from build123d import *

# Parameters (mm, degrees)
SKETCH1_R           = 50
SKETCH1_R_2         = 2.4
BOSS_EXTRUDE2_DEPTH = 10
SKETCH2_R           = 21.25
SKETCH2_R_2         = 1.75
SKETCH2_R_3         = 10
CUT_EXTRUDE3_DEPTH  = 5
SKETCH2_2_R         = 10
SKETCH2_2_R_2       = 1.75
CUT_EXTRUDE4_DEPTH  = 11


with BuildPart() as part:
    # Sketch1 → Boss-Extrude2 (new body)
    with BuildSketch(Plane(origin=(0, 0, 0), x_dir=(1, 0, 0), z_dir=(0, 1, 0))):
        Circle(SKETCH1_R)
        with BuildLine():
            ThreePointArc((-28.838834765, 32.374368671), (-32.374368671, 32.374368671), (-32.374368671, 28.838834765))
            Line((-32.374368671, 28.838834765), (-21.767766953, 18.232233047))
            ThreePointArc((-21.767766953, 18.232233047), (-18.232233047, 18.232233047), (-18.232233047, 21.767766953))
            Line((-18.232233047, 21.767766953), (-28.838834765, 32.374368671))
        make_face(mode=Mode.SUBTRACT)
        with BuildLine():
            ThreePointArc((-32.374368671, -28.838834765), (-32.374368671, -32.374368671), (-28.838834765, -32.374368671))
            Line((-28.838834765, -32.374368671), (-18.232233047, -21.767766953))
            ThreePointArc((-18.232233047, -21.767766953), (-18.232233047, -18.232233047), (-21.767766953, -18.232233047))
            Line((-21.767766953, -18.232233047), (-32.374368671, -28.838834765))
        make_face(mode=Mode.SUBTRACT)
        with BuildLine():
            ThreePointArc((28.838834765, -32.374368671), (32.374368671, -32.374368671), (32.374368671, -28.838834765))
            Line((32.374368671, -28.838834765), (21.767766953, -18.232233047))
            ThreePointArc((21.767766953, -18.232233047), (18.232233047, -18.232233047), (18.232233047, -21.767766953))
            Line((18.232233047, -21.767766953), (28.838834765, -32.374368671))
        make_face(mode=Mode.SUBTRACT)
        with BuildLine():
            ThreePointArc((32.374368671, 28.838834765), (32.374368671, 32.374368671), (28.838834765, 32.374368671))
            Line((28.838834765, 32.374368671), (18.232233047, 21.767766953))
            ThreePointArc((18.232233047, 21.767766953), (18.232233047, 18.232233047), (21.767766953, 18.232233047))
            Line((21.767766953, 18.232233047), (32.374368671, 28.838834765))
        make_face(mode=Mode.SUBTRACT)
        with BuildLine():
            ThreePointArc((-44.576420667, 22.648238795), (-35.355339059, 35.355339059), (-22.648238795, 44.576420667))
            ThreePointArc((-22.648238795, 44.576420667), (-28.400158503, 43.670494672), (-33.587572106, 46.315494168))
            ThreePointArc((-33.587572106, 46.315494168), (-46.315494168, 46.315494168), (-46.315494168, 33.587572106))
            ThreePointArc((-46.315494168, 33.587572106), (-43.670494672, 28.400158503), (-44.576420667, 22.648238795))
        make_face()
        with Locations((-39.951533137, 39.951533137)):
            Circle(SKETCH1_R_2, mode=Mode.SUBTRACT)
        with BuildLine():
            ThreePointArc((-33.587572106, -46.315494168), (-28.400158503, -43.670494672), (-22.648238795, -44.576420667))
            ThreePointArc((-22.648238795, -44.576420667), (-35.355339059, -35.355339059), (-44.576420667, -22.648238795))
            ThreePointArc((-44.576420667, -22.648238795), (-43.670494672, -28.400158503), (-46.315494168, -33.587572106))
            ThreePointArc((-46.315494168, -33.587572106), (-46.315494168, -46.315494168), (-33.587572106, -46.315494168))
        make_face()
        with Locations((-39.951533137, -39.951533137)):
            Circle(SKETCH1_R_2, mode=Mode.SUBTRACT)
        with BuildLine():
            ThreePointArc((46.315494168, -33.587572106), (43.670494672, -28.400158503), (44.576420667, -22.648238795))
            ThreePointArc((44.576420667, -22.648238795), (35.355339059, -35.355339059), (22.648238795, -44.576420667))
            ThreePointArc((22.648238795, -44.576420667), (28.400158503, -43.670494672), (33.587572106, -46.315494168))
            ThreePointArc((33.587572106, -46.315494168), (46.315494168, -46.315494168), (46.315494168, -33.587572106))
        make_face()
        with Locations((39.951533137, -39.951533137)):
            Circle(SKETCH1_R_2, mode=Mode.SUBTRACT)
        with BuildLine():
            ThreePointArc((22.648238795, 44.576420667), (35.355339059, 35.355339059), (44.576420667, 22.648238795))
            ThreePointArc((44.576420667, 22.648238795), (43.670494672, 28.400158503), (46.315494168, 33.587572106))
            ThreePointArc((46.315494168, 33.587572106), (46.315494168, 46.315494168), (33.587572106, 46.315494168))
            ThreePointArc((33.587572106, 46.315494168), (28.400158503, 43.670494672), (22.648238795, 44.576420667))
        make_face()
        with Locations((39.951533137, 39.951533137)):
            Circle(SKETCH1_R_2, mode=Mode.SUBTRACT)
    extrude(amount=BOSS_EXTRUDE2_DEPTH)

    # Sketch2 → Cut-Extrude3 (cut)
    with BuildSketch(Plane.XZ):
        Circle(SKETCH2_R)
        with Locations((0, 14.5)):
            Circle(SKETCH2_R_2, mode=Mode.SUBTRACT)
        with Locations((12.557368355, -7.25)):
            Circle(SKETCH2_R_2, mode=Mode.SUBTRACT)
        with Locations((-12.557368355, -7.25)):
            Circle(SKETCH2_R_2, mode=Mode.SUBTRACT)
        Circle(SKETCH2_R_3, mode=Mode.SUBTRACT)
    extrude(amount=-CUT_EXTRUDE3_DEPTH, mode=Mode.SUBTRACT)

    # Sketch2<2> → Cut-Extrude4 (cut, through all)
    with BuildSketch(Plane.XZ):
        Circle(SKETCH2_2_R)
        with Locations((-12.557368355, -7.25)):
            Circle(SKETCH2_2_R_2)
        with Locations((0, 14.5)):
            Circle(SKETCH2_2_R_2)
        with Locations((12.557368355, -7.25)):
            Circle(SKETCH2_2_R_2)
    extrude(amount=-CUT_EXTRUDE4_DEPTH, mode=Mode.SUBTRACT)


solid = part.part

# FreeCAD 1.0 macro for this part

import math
import FreeCAD as App
import Part
import Sketcher

V = App.Vector

doc = App.newDocument("Part")
body = doc.addObject("PartDesign::Body", "Body")

# Sketch on XZ plane
sketch1 = body.newObject("Sketcher::SketchObject", "Sketch")
sketch1.AttachmentSupport = (doc.getObject("XZ_Plane"), [""])
sketch1.MapMode = "FlatFace"
sketch1.addGeometry([
    Part.ArcOfCircle(Part.Circle(V(-26.9, -53, 0), V(0, 0, 1), 9.4), math.radians(63), math.radians(135)),  # 0
    Part.ArcOfCircle(Part.Circle(V(-40, -40, 0), V(0, 0, 1), 9), math.radians(135), math.radians(315)),  # 1
    Part.ArcOfCircle(Part.Circle(V(-53, -26.9, 0), V(0, 0, 1), 9.4), math.radians(-45), math.radians(27)),  # 2
    Part.ArcOfCircle(Part.Circle(V(0, 0, 0), V(0, 0, 1), 50), math.radians(153), math.radians(207)),  # 3
    Part.ArcOfCircle(Part.Circle(V(-53, 26.9, 0), V(0, 0, 1), 9.4), math.radians(-27), math.radians(45)),  # 4
    Part.ArcOfCircle(Part.Circle(V(-40, 40, 0), V(0, 0, 1), 9), math.radians(45), math.radians(225)),  # 5
    Part.ArcOfCircle(Part.Circle(V(-26.9, 53, 0), V(0, 0, 1), 9.4), math.radians(-135), math.radians(-63)),  # 6
    Part.ArcOfCircle(Part.Circle(V(0, 0, 0), V(0, 0, 1), 50), math.radians(63), math.radians(117)),  # 7
    Part.ArcOfCircle(Part.Circle(V(26.9, 53, 0), V(0, 0, 1), 9.4), math.radians(-117), math.radians(-45)),  # 8
    Part.ArcOfCircle(Part.Circle(V(40, 40, 0), V(0, 0, 1), 9), math.radians(-45), math.radians(135)),  # 9
    Part.ArcOfCircle(Part.Circle(V(53, 26.9, 0), V(0, 0, 1), 9.4), math.radians(135), math.radians(207)),  # 10
    Part.ArcOfCircle(Part.Circle(V(0, 0, 0), V(0, 0, 1), 50), math.radians(-27), math.radians(27)),  # 11
    Part.ArcOfCircle(Part.Circle(V(53, -26.9, 0), V(0, 0, 1), 9.4), math.radians(153), math.radians(225)),  # 12
    Part.ArcOfCircle(Part.Circle(V(40, -40, 0), V(0, 0, 1), 9), math.radians(-135), math.radians(45)),  # 13
    Part.ArcOfCircle(Part.Circle(V(26.9, -53, 0), V(0, 0, 1), 9.4), math.radians(45), math.radians(117)),  # 14
    Part.ArcOfCircle(Part.Circle(V(0, 0, 0), V(0, 0, 1), 50), math.radians(-117), math.radians(-63)),  # 15
    Part.Circle(V(-40, 40, 0), V(0, 0, 1), 2.4),  # 16
    Part.ArcOfCircle(Part.Circle(V(-30.6, 30.6, 0), V(0, 0, 1), 2.5), math.radians(45), math.radians(225)),  # 17
    Part.LineSegment(V(-32.4, 28.8, 0), V(-21.8, 18.2, 0)),  # 18
    Part.ArcOfCircle(Part.Circle(V(-20, 20, 0), V(0, 0, 1), 2.5), math.radians(-135), math.radians(45)),  # 19
    Part.LineSegment(V(-18.2, 21.8, 0), V(-28.8, 32.4, 0)),  # 20
    Part.Circle(V(40, 40, 0), V(0, 0, 1), 2.4),  # 21
    Part.ArcOfCircle(Part.Circle(V(30.6, 30.6, 0), V(0, 0, 1), 2.5), math.radians(-45), math.radians(135)),  # 22
    Part.LineSegment(V(28.8, 32.4, 0), V(18.2, 21.8, 0)),  # 23
    Part.ArcOfCircle(Part.Circle(V(20, 20, 0), V(0, 0, 1), 2.5), math.radians(135), math.radians(315)),  # 24
    Part.LineSegment(V(21.8, 18.2, 0), V(32.4, 28.8, 0)),  # 25
    Part.ArcOfCircle(Part.Circle(V(-30.6, -30.6, 0), V(0, 0, 1), 2.5), math.radians(135), math.radians(315)),  # 26
    Part.LineSegment(V(-28.8, -32.4, 0), V(-18.2, -21.8, 0)),  # 27
    Part.ArcOfCircle(Part.Circle(V(-20, -20, 0), V(0, 0, 1), 2.5), math.radians(-45), math.radians(135)),  # 28
    Part.LineSegment(V(-21.8, -18.2, 0), V(-32.4, -28.8, 0)),  # 29
    Part.Circle(V(-40, -40, 0), V(0, 0, 1), 2.4),  # 30
    Part.ArcOfCircle(Part.Circle(V(30.6, -30.6, 0), V(0, 0, 1), 2.5), math.radians(-135), math.radians(45)),  # 31
    Part.LineSegment(V(32.4, -28.8, 0), V(21.8, -18.2, 0)),  # 32
    Part.ArcOfCircle(Part.Circle(V(20, -20, 0), V(0, 0, 1), 2.5), math.radians(45), math.radians(225)),  # 33
    Part.LineSegment(V(18.2, -21.8, 0), V(28.8, -32.4, 0)),  # 34
    Part.Circle(V(40, -40, 0), V(0, 0, 1), 2.4),  # 35
], False)
sketch1.addConstraint([
    Sketcher.Constraint("Tangent", 0, 2, 1, 2),
    Sketcher.Constraint("Tangent", 1, 1, 2, 1),
    Sketcher.Constraint("Tangent", 2, 2, 3, 2),
    Sketcher.Constraint("Tangent", 3, 1, 4, 1),
    Sketcher.Constraint("Tangent", 4, 2, 5, 2),
    Sketcher.Constraint("Tangent", 5, 1, 6, 1),
    Sketcher.Constraint("Tangent", 6, 2, 7, 2),
    Sketcher.Constraint("Tangent", 7, 1, 8, 1),
    Sketcher.Constraint("Tangent", 8, 2, 9, 2),
    Sketcher.Constraint("Tangent", 9, 1, 10, 1),
    Sketcher.Constraint("Tangent", 10, 2, 11, 2),
    Sketcher.Constraint("Tangent", 11, 1, 12, 1),
    Sketcher.Constraint("Tangent", 12, 2, 13, 2),
    Sketcher.Constraint("Tangent", 13, 1, 14, 1),
    Sketcher.Constraint("Tangent", 14, 2, 15, 2),
    Sketcher.Constraint("Tangent", 15, 1, 0, 1),
    Sketcher.Constraint("Tangent", 17, 2, 18, 1),
    Sketcher.Constraint("Tangent", 18, 2, 19, 1),
    Sketcher.Constraint("Tangent", 19, 2, 20, 1),
    Sketcher.Constraint("Tangent", 20, 2, 17, 1),
    Sketcher.Constraint("Tangent", 22, 2, 23, 1),
    Sketcher.Constraint("Tangent", 23, 2, 24, 1),
    Sketcher.Constraint("Tangent", 24, 2, 25, 1),
    Sketcher.Constraint("Tangent", 25, 2, 22, 1),
    Sketcher.Constraint("Tangent", 26, 2, 27, 1),
    Sketcher.Constraint("Tangent", 27, 2, 28, 1),
    Sketcher.Constraint("Tangent", 28, 2, 29, 1),
    Sketcher.Constraint("Tangent", 29, 2, 26, 1),
    Sketcher.Constraint("Tangent", 31, 2, 32, 1),
    Sketcher.Constraint("Tangent", 32, 2, 33, 1),
    Sketcher.Constraint("Tangent", 33, 2, 34, 1),
    Sketcher.Constraint("Tangent", 34, 2, 31, 1),
    Sketcher.Constraint("Coincident", 3, 3, -1, 1),
    Sketcher.Constraint("Coincident", 7, 3, -1, 1),
    Sketcher.Constraint("Coincident", 11, 3, -1, 1),
    Sketcher.Constraint("Coincident", 15, 3, -1, 1),
    Sketcher.Constraint("Coincident", 16, 3, 5, 3),
    Sketcher.Constraint("Coincident", 21, 3, 9, 3),
    Sketcher.Constraint("Coincident", 30, 3, 1, 3),
    Sketcher.Constraint("Coincident", 35, 3, 13, 3),
    Sketcher.Constraint("Equal", 0, 2),
    Sketcher.Constraint("Equal", 2, 4),
    Sketcher.Constraint("Equal", 1, 5),
    Sketcher.Constraint("Equal", 4, 6),
    Sketcher.Constraint("Equal", 3, 7),
    Sketcher.Constraint("Equal", 6, 8),
    Sketcher.Constraint("Equal", 5, 9),
    Sketcher.Constraint("Equal", 8, 10),
    Sketcher.Constraint("Equal", 7, 11),
    Sketcher.Constraint("Equal", 10, 12),
    Sketcher.Constraint("Equal", 9, 13),
    Sketcher.Constraint("Equal", 12, 14),
    Sketcher.Constraint("Equal", 11, 15),
    Sketcher.Constraint("Equal", 17, 19),
    Sketcher.Constraint("Equal", 16, 21),
    Sketcher.Constraint("Equal", 19, 22),
    Sketcher.Constraint("Equal", 22, 24),
    Sketcher.Constraint("Equal", 24, 26),
    Sketcher.Constraint("Equal", 26, 28),
    Sketcher.Constraint("Equal", 21, 30),
    Sketcher.Constraint("Equal", 28, 31),
    Sketcher.Constraint("Equal", 31, 33),
    Sketcher.Constraint("Equal", 30, 35),
    Sketcher.Constraint("Symmetric", 1, 3, 9, 3, -1, 1),
    Sketcher.Constraint("Symmetric", 5, 3, 13, 3, -1, 1),
    Sketcher.Constraint("Symmetric", 22, 3, 26, 3, -1, 1),
    Sketcher.Constraint("Symmetric", 24, 3, 28, 3, -1, 1),
    Sketcher.Constraint("Symmetric", 17, 3, 31, 3, -1, 1),
    Sketcher.Constraint("Symmetric", 19, 3, 33, 3, -1, 1),
    Sketcher.Constraint("Symmetric", 5, 3, 9, 3, -2),
    Sketcher.Constraint("Symmetric", 17, 3, 22, 3, -2),
    Sketcher.Constraint("Symmetric", 19, 3, 24, 3, -2),
    Sketcher.Constraint("Perpendicular", 20, 23),
    Sketcher.Constraint("Radius", 1, 9.0),
    Sketcher.Constraint("Radius", 3, 50.0),
    Sketcher.Constraint("Diameter", 16, 4.8),
    Sketcher.Constraint("Radius", 17, 2.5),
    Sketcher.Constraint("Distance", 18, 15.0),
    Sketcher.Constraint("DistanceX", 19, 3, -1, 1, 20.0),
    Sketcher.Constraint("DistanceY", -1, 1, 19, 3, 20.0),
    Sketcher.Constraint("Radius", 0, 9.429878),
    Sketcher.Constraint("DistanceY", 17, 2, 5, 3, 11.112698),
    Sketcher.Constraint("DistanceX", 5, 3, 20, 2, 11.112698),
])
pad1 = body.newObject("PartDesign::Pad", "Pad")
pad1.Profile = sketch1
pad1.Length = 10
pad1.Reversed = True

# Sketch on XZ plane
sketch2 = body.newObject("Sketcher::SketchObject", "Sketch001")
sketch2.AttachmentSupport = (doc.getObject("XZ_Plane"), [""])
sketch2.MapMode = "FlatFace"
sketch2.addGeometry([
    Part.Circle(V(0, 0, 0), V(0, 0, 1), 21.2),  # 0
    Part.Circle(V(-12.6, -7.2, 0), V(0, 0, 1), 1.8),  # 1
    Part.Circle(V(12.6, -7.2, 0), V(0, 0, 1), 1.8),  # 2
    Part.Circle(V(0, 0, 0), V(0, 0, 1), 10),  # 3
    Part.Circle(V(0, 14.5, 0), V(0, 0, 1), 1.8),  # 4
], False)
sketch2.addConstraint([
    Sketcher.Constraint("Coincident", 0, 3, -1, 1),
    Sketcher.Constraint("Coincident", 3, 3, -1, 1),
    Sketcher.Constraint("Equal", 1, 2),
    Sketcher.Constraint("Equal", 2, 4),
    Sketcher.Constraint("Symmetric", 1, 3, 2, 3, -2),
    Sketcher.Constraint("PointOnObject", 4, 3, -2),
    Sketcher.Constraint("Diameter", 3, 20.0),
    Sketcher.Constraint("Diameter", 0, 42.5),
    Sketcher.Constraint("Diameter", 1, 3.5),
    Sketcher.Constraint("DistanceY", -1, 1, 4, 3, 14.5),
    Sketcher.Constraint("DistanceY", 1, 3, -1, 1, 7.25),
    Sketcher.Constraint("DistanceX", 1, 3, -1, 1, 12.557368),
])
pocket1 = body.newObject("PartDesign::Pocket", "Pocket")
pocket1.Profile = sketch2
pocket1.Length = 5

# Sketch on XZ plane
sketch3 = body.newObject("Sketcher::SketchObject", "Sketch002")
sketch3.AttachmentSupport = (doc.getObject("XZ_Plane"), [""])
sketch3.MapMode = "FlatFace"
sketch3.addGeometry([
    Part.Circle(V(0, 0, 0), V(0, 0, 1), 10),
    Part.Circle(V(-12.6, -7.2, 0), V(0, 0, 1), 1.8),
    Part.Circle(V(0, 14.5, 0), V(0, 0, 1), 1.8),
    Part.Circle(V(12.6, -7.2, 0), V(0, 0, 1), 1.8),
], False)
sketch3.addConstraint([
    Sketcher.Constraint("Coincident", 0, 3, -1, 1),
    Sketcher.Constraint("Equal", 1, 2),
    Sketcher.Constraint("Equal", 2, 3),
    Sketcher.Constraint("Symmetric", 1, 3, 3, 3, -2),
    Sketcher.Constraint("PointOnObject", 2, 3, -2),
    Sketcher.Constraint("Diameter", 0, 20.0),
    Sketcher.Constraint("Diameter", 1, 3.5),
    Sketcher.Constraint("DistanceY", -1, 1, 2, 3, 14.5),
    Sketcher.Constraint("DistanceY", 1, 3, -1, 1, 7.25),
    Sketcher.Constraint("DistanceX", 1, 3, -1, 1, 12.557368),
])
pocket2 = body.newObject("PartDesign::Pocket", "Pocket001")
pocket2.Profile = sketch3
pocket2.Type = "ThroughAll"

doc.recompute()
